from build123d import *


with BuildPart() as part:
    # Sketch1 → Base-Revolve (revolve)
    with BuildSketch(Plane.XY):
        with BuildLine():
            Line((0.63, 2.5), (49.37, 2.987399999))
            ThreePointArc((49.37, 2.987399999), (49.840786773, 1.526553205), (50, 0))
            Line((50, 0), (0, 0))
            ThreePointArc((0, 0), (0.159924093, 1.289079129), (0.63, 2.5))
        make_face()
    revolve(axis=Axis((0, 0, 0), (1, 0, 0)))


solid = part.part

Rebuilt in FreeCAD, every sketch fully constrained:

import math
import FreeCAD as App
import Part
import Sketcher
from FreeCAD import Vector
Q = App.Units.Quantity

doc = App.newDocument("Part")
body = doc.addObject("PartDesign::Body", "Body")

# Sketch on XY plane
sketch1 = body.newObject("Sketcher::SketchObject", "Sketch")
sketch1.AttachmentSupport = (doc.getObject("XY_Plane"), [""])
sketch1.MapMode = "FlatFace"
sketch1.addGeometry(Part.LineSegment(Vector(49.4, 3, 0), Vector(0.6, 2.5, 0)), False)
sketch1.addGeometry(Part.ArcOfCircle(Part.Circle(Vector(5.3, 0, 0), Vector(0, 0, 1), 5.3), math.radians(152), math.radians(180)), False)
sketch1.addGeometry(Part.LineSegment(Vector(0, 0, 0), Vector(50, 0, 0)), False)
sketch1.addGeometry(Part.ArcOfCircle(Part.Circle(Vector(42.6, 0, 0), Vector(0, 0, 1), 7.4), math.radians(0), math.radians(24)), False)
sketch1.addConstraint(Sketcher.Constraint("Coincident", 0, 2, 1, 1))
sketch1.addConstraint(Sketcher.Constraint("Coincident", 1, 2, 2, 1))
sketch1.addConstraint(Sketcher.Constraint("Coincident", 2, 2, 3, 1))
sketch1.addConstraint(Sketcher.Constraint("Coincident", 3, 2, 0, 1))
sketch1.addConstraint(Sketcher.Constraint("Horizontal", 2))
sketch1.addConstraint(Sketcher.Constraint("Coincident", 1, 2, -1, 1))
sketch1.addConstraint(Sketcher.Constraint("PointOnObject", 1, 3, -1))
sketch1.addConstraint(Sketcher.Constraint("PointOnObject", 3, 3, -1))
sketch1.addConstraint(Sketcher.Constraint("DistanceX", 2, 1, 2, 2, Q("50 mm")))
sketch1.addConstraint(Sketcher.Constraint("DistanceY", -1, 1, 0, 2, Q("2.5 mm")))
sketch1.addConstraint(Sketcher.Constraint("DistanceX", -1, 1, 0, 2, Q("0.63 mm")))
sketch1.addConstraint(Sketcher.Constraint("DistanceX", -1, 1, 3, 2, Q("49.37 mm")))
sketch1.addConstraint(Sketcher.Constraint("Radius", 3, Q("7.397983 mm")))
revolution = body.newObject("PartDesign::Revolution", "Revolution")
revolution.Profile = sketch1
revolution.ReferenceAxis = (sketch1, ["H_Axis"])
revolution.Angle = 360

doc.recompute()
